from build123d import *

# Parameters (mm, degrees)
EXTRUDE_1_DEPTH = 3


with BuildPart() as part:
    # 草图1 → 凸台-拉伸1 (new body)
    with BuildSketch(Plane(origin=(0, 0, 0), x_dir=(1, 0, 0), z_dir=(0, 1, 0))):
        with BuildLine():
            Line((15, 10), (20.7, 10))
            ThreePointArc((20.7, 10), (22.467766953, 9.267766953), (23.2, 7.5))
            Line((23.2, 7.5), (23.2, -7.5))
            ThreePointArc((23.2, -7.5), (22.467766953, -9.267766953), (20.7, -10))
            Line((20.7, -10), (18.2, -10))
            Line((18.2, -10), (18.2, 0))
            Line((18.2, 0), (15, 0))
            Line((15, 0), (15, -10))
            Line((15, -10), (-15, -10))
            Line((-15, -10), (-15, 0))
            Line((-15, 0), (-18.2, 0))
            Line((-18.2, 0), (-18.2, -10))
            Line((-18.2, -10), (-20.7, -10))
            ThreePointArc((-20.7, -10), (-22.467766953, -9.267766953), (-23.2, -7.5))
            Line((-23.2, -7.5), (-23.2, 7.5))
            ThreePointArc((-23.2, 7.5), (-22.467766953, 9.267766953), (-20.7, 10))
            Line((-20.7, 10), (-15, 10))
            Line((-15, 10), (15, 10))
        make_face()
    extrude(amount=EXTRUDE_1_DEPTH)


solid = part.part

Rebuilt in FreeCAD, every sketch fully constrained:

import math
import FreeCAD as App
import Part
import Sketcher

V = App.Vector

doc = App.newDocument("Part")
body = doc.addObject("PartDesign::Body", "Body")

# Sketch on XZ plane
sketch1 = body.newObject("Sketcher::SketchObject", "Sketch")
sketch1.AttachmentSupport = (doc.getObject("XZ_Plane"), [""])
sketch1.MapMode = "FlatFace"
sketch1.addGeometry(Part.ArcOfCircle(Part.Circle(V(20.7, -7.5, 0), V(0, 0, 1), 2.5), math.radians(-90), math.radians(0)), False)
sketch1.addGeometry(Part.LineSegment(V(20.7, -10, 0), V(-20.7, -10, 0)), False)
sketch1.addGeometry(Part.ArcOfCircle(Part.Circle(V(-20.7, -7.5, 0), V(0, 0, 1), 2.5), math.radians(180), math.radians(270)), False)
sketch1.addGeometry(Part.LineSegment(V(-23.2, -7.5, 0), V(-23.2, 7.5, 0)), False)
sketch1.addGeometry(Part.ArcOfCircle(Part.Circle(V(-20.7, 7.5, 0), V(0, 0, 1), 2.5), math.radians(90), math.radians(180)), False)
sketch1.addGeometry(Part.LineSegment(V(-20.7, 10, 0), V(-18.2, 10, 0)), False)
sketch1.addGeometry(Part.LineSegment(V(-18.2, 10, 0), V(-18.2, 0, 0)), False)
sketch1.addGeometry(Part.LineSegment(V(-18.2, 0, 0), V(-15, 0, 0)), False)
sketch1.addGeometry(Part.LineSegment(V(-15, 0, 0), V(-15, 10, 0)), False)
sketch1.addGeometry(Part.LineSegment(V(-15, 10, 0), V(15, 10, 0)), False)
sketch1.addGeometry(Part.LineSegment(V(15, 10, 0), V(15, 0, 0)), False)
sketch1.addGeometry(Part.LineSegment(V(15, 0, 0), V(18.2, 0, 0)), False)
sketch1.addGeometry(Part.LineSegment(V(18.2, 0, 0), V(18.2, 10, 0)), False)
sketch1.addGeometry(Part.LineSegment(V(18.2, 10, 0), V(20.7, 10, 0)), False)
sketch1.addGeometry(Part.ArcOfCircle(Part.Circle(V(20.7, 7.5, 0), V(0, 0, 1), 2.5), math.radians(0), math.radians(90)), False)
sketch1.addGeometry(Part.LineSegment(V(23.2, 7.5, 0), V(23.2, -7.5, 0)), False)
sketch1.addConstraint(Sketcher.Constraint("Tangent", 0, 1, 1, 1))
sketch1.addConstraint(Sketcher.Constraint("Tangent", 1, 2, 2, 2))
sketch1.addConstraint(Sketcher.Constraint("Tangent", 2, 1, 3, 1))
sketch1.addConstraint(Sketcher.Constraint("Tangent", 3, 2, 4, 2))
sketch1.addConstraint(Sketcher.Constraint("Tangent", 4, 1, 5, 1))
sketch1.addConstraint(Sketcher.Constraint("Coincident", 5, 2, 6, 1))
sketch1.addConstraint(Sketcher.Constraint("Coincident", 6, 2, 7, 1))
sketch1.addConstraint(Sketcher.Constraint("Coincident", 7, 2, 8, 1))
sketch1.addConstraint(Sketcher.Constraint("Coincident", 8, 2, 9, 1))
sketch1.addConstraint(Sketcher.Constraint("Coincident", 9, 2, 10, 1))
sketch1.addConstraint(Sketcher.Constraint("Coincident", 10, 2, 11, 1))
sketch1.addConstraint(Sketcher.Constraint("Coincident", 11, 2, 12, 1))
sketch1.addConstraint(Sketcher.Constraint("Coincident", 12, 2, 13, 1))
sketch1.addConstraint(Sketcher.Constraint("Tangent", 13, 2, 14, 2))
sketch1.addConstraint(Sketcher.Constraint("Tangent", 14, 1, 15, 1))
sketch1.addConstraint(Sketcher.Constraint("Tangent", 15, 2, 0, 2))
sketch1.addConstraint(Sketcher.Constraint("Horizontal", 1))
sketch1.addConstraint(Sketcher.Constraint("Vertical", 3))
sketch1.addConstraint(Sketcher.Constraint("Horizontal", 5))
sketch1.addConstraint(Sketcher.Constraint("Vertical", 6))
sketch1.addConstraint(Sketcher.Constraint("Horizontal", 7))
sketch1.addConstraint(Sketcher.Constraint("Vertical", 8))
sketch1.addConstraint(Sketcher.Constraint("Horizontal", 9))
sketch1.addConstraint(Sketcher.Constraint("Vertical", 10))
sketch1.addConstraint(Sketcher.Constraint("Horizontal", 11))
sketch1.addConstraint(Sketcher.Constraint("Vertical", 12))
sketch1.addConstraint(Sketcher.Constraint("Horizontal", 13))
sketch1.addConstraint(Sketcher.Constraint("Vertical", 15))
sketch1.addConstraint(Sketcher.Constraint("Equal", 0, 2))
sketch1.addConstraint(Sketcher.Constraint("Equal", 2, 4))
sketch1.addConstraint(Sketcher.Constraint("Equal", 4, 14))
sketch1.addConstraint(Sketcher.Constraint("Symmetric", 0, 3, 4, 3, -1, 1))
sketch1.addConstraint(Sketcher.Constraint("Symmetric", 7, 2, 10, 2, -1, 1))
sketch1.addConstraint(Sketcher.Constraint("Symmetric", 6, 2, 11, 2, -2))
sketch1.addConstraint(Sketcher.Constraint("Horizontal", 4, 3, 14, 3))
sketch1.addConstraint(Sketcher.Constraint("Horizontal", 5, 2, 8, 2))
sketch1.addConstraint(Sketcher.Constraint("Radius", 0, 2.5))
sketch1.addConstraint(Sketcher.Constraint("DistanceX", 9, 1, 9, 2, 30.0))
sketch1.addConstraint(Sketcher.Constraint("DistanceY", 3, 1, 3, 2, 15.0))
sketch1.addConstraint(Sketcher.Constraint("DistanceX", 1, 2, 1, 1, 41.4))
sketch1.addConstraint(Sketcher.Constraint("DistanceX", 5, 1, 5, 2, 2.5))
pad1 = body.newObject("PartDesign::Pad", "Pad")
pad1.Profile = sketch1
pad1.Length = 3
pad1.Reversed = True

doc.recompute()
